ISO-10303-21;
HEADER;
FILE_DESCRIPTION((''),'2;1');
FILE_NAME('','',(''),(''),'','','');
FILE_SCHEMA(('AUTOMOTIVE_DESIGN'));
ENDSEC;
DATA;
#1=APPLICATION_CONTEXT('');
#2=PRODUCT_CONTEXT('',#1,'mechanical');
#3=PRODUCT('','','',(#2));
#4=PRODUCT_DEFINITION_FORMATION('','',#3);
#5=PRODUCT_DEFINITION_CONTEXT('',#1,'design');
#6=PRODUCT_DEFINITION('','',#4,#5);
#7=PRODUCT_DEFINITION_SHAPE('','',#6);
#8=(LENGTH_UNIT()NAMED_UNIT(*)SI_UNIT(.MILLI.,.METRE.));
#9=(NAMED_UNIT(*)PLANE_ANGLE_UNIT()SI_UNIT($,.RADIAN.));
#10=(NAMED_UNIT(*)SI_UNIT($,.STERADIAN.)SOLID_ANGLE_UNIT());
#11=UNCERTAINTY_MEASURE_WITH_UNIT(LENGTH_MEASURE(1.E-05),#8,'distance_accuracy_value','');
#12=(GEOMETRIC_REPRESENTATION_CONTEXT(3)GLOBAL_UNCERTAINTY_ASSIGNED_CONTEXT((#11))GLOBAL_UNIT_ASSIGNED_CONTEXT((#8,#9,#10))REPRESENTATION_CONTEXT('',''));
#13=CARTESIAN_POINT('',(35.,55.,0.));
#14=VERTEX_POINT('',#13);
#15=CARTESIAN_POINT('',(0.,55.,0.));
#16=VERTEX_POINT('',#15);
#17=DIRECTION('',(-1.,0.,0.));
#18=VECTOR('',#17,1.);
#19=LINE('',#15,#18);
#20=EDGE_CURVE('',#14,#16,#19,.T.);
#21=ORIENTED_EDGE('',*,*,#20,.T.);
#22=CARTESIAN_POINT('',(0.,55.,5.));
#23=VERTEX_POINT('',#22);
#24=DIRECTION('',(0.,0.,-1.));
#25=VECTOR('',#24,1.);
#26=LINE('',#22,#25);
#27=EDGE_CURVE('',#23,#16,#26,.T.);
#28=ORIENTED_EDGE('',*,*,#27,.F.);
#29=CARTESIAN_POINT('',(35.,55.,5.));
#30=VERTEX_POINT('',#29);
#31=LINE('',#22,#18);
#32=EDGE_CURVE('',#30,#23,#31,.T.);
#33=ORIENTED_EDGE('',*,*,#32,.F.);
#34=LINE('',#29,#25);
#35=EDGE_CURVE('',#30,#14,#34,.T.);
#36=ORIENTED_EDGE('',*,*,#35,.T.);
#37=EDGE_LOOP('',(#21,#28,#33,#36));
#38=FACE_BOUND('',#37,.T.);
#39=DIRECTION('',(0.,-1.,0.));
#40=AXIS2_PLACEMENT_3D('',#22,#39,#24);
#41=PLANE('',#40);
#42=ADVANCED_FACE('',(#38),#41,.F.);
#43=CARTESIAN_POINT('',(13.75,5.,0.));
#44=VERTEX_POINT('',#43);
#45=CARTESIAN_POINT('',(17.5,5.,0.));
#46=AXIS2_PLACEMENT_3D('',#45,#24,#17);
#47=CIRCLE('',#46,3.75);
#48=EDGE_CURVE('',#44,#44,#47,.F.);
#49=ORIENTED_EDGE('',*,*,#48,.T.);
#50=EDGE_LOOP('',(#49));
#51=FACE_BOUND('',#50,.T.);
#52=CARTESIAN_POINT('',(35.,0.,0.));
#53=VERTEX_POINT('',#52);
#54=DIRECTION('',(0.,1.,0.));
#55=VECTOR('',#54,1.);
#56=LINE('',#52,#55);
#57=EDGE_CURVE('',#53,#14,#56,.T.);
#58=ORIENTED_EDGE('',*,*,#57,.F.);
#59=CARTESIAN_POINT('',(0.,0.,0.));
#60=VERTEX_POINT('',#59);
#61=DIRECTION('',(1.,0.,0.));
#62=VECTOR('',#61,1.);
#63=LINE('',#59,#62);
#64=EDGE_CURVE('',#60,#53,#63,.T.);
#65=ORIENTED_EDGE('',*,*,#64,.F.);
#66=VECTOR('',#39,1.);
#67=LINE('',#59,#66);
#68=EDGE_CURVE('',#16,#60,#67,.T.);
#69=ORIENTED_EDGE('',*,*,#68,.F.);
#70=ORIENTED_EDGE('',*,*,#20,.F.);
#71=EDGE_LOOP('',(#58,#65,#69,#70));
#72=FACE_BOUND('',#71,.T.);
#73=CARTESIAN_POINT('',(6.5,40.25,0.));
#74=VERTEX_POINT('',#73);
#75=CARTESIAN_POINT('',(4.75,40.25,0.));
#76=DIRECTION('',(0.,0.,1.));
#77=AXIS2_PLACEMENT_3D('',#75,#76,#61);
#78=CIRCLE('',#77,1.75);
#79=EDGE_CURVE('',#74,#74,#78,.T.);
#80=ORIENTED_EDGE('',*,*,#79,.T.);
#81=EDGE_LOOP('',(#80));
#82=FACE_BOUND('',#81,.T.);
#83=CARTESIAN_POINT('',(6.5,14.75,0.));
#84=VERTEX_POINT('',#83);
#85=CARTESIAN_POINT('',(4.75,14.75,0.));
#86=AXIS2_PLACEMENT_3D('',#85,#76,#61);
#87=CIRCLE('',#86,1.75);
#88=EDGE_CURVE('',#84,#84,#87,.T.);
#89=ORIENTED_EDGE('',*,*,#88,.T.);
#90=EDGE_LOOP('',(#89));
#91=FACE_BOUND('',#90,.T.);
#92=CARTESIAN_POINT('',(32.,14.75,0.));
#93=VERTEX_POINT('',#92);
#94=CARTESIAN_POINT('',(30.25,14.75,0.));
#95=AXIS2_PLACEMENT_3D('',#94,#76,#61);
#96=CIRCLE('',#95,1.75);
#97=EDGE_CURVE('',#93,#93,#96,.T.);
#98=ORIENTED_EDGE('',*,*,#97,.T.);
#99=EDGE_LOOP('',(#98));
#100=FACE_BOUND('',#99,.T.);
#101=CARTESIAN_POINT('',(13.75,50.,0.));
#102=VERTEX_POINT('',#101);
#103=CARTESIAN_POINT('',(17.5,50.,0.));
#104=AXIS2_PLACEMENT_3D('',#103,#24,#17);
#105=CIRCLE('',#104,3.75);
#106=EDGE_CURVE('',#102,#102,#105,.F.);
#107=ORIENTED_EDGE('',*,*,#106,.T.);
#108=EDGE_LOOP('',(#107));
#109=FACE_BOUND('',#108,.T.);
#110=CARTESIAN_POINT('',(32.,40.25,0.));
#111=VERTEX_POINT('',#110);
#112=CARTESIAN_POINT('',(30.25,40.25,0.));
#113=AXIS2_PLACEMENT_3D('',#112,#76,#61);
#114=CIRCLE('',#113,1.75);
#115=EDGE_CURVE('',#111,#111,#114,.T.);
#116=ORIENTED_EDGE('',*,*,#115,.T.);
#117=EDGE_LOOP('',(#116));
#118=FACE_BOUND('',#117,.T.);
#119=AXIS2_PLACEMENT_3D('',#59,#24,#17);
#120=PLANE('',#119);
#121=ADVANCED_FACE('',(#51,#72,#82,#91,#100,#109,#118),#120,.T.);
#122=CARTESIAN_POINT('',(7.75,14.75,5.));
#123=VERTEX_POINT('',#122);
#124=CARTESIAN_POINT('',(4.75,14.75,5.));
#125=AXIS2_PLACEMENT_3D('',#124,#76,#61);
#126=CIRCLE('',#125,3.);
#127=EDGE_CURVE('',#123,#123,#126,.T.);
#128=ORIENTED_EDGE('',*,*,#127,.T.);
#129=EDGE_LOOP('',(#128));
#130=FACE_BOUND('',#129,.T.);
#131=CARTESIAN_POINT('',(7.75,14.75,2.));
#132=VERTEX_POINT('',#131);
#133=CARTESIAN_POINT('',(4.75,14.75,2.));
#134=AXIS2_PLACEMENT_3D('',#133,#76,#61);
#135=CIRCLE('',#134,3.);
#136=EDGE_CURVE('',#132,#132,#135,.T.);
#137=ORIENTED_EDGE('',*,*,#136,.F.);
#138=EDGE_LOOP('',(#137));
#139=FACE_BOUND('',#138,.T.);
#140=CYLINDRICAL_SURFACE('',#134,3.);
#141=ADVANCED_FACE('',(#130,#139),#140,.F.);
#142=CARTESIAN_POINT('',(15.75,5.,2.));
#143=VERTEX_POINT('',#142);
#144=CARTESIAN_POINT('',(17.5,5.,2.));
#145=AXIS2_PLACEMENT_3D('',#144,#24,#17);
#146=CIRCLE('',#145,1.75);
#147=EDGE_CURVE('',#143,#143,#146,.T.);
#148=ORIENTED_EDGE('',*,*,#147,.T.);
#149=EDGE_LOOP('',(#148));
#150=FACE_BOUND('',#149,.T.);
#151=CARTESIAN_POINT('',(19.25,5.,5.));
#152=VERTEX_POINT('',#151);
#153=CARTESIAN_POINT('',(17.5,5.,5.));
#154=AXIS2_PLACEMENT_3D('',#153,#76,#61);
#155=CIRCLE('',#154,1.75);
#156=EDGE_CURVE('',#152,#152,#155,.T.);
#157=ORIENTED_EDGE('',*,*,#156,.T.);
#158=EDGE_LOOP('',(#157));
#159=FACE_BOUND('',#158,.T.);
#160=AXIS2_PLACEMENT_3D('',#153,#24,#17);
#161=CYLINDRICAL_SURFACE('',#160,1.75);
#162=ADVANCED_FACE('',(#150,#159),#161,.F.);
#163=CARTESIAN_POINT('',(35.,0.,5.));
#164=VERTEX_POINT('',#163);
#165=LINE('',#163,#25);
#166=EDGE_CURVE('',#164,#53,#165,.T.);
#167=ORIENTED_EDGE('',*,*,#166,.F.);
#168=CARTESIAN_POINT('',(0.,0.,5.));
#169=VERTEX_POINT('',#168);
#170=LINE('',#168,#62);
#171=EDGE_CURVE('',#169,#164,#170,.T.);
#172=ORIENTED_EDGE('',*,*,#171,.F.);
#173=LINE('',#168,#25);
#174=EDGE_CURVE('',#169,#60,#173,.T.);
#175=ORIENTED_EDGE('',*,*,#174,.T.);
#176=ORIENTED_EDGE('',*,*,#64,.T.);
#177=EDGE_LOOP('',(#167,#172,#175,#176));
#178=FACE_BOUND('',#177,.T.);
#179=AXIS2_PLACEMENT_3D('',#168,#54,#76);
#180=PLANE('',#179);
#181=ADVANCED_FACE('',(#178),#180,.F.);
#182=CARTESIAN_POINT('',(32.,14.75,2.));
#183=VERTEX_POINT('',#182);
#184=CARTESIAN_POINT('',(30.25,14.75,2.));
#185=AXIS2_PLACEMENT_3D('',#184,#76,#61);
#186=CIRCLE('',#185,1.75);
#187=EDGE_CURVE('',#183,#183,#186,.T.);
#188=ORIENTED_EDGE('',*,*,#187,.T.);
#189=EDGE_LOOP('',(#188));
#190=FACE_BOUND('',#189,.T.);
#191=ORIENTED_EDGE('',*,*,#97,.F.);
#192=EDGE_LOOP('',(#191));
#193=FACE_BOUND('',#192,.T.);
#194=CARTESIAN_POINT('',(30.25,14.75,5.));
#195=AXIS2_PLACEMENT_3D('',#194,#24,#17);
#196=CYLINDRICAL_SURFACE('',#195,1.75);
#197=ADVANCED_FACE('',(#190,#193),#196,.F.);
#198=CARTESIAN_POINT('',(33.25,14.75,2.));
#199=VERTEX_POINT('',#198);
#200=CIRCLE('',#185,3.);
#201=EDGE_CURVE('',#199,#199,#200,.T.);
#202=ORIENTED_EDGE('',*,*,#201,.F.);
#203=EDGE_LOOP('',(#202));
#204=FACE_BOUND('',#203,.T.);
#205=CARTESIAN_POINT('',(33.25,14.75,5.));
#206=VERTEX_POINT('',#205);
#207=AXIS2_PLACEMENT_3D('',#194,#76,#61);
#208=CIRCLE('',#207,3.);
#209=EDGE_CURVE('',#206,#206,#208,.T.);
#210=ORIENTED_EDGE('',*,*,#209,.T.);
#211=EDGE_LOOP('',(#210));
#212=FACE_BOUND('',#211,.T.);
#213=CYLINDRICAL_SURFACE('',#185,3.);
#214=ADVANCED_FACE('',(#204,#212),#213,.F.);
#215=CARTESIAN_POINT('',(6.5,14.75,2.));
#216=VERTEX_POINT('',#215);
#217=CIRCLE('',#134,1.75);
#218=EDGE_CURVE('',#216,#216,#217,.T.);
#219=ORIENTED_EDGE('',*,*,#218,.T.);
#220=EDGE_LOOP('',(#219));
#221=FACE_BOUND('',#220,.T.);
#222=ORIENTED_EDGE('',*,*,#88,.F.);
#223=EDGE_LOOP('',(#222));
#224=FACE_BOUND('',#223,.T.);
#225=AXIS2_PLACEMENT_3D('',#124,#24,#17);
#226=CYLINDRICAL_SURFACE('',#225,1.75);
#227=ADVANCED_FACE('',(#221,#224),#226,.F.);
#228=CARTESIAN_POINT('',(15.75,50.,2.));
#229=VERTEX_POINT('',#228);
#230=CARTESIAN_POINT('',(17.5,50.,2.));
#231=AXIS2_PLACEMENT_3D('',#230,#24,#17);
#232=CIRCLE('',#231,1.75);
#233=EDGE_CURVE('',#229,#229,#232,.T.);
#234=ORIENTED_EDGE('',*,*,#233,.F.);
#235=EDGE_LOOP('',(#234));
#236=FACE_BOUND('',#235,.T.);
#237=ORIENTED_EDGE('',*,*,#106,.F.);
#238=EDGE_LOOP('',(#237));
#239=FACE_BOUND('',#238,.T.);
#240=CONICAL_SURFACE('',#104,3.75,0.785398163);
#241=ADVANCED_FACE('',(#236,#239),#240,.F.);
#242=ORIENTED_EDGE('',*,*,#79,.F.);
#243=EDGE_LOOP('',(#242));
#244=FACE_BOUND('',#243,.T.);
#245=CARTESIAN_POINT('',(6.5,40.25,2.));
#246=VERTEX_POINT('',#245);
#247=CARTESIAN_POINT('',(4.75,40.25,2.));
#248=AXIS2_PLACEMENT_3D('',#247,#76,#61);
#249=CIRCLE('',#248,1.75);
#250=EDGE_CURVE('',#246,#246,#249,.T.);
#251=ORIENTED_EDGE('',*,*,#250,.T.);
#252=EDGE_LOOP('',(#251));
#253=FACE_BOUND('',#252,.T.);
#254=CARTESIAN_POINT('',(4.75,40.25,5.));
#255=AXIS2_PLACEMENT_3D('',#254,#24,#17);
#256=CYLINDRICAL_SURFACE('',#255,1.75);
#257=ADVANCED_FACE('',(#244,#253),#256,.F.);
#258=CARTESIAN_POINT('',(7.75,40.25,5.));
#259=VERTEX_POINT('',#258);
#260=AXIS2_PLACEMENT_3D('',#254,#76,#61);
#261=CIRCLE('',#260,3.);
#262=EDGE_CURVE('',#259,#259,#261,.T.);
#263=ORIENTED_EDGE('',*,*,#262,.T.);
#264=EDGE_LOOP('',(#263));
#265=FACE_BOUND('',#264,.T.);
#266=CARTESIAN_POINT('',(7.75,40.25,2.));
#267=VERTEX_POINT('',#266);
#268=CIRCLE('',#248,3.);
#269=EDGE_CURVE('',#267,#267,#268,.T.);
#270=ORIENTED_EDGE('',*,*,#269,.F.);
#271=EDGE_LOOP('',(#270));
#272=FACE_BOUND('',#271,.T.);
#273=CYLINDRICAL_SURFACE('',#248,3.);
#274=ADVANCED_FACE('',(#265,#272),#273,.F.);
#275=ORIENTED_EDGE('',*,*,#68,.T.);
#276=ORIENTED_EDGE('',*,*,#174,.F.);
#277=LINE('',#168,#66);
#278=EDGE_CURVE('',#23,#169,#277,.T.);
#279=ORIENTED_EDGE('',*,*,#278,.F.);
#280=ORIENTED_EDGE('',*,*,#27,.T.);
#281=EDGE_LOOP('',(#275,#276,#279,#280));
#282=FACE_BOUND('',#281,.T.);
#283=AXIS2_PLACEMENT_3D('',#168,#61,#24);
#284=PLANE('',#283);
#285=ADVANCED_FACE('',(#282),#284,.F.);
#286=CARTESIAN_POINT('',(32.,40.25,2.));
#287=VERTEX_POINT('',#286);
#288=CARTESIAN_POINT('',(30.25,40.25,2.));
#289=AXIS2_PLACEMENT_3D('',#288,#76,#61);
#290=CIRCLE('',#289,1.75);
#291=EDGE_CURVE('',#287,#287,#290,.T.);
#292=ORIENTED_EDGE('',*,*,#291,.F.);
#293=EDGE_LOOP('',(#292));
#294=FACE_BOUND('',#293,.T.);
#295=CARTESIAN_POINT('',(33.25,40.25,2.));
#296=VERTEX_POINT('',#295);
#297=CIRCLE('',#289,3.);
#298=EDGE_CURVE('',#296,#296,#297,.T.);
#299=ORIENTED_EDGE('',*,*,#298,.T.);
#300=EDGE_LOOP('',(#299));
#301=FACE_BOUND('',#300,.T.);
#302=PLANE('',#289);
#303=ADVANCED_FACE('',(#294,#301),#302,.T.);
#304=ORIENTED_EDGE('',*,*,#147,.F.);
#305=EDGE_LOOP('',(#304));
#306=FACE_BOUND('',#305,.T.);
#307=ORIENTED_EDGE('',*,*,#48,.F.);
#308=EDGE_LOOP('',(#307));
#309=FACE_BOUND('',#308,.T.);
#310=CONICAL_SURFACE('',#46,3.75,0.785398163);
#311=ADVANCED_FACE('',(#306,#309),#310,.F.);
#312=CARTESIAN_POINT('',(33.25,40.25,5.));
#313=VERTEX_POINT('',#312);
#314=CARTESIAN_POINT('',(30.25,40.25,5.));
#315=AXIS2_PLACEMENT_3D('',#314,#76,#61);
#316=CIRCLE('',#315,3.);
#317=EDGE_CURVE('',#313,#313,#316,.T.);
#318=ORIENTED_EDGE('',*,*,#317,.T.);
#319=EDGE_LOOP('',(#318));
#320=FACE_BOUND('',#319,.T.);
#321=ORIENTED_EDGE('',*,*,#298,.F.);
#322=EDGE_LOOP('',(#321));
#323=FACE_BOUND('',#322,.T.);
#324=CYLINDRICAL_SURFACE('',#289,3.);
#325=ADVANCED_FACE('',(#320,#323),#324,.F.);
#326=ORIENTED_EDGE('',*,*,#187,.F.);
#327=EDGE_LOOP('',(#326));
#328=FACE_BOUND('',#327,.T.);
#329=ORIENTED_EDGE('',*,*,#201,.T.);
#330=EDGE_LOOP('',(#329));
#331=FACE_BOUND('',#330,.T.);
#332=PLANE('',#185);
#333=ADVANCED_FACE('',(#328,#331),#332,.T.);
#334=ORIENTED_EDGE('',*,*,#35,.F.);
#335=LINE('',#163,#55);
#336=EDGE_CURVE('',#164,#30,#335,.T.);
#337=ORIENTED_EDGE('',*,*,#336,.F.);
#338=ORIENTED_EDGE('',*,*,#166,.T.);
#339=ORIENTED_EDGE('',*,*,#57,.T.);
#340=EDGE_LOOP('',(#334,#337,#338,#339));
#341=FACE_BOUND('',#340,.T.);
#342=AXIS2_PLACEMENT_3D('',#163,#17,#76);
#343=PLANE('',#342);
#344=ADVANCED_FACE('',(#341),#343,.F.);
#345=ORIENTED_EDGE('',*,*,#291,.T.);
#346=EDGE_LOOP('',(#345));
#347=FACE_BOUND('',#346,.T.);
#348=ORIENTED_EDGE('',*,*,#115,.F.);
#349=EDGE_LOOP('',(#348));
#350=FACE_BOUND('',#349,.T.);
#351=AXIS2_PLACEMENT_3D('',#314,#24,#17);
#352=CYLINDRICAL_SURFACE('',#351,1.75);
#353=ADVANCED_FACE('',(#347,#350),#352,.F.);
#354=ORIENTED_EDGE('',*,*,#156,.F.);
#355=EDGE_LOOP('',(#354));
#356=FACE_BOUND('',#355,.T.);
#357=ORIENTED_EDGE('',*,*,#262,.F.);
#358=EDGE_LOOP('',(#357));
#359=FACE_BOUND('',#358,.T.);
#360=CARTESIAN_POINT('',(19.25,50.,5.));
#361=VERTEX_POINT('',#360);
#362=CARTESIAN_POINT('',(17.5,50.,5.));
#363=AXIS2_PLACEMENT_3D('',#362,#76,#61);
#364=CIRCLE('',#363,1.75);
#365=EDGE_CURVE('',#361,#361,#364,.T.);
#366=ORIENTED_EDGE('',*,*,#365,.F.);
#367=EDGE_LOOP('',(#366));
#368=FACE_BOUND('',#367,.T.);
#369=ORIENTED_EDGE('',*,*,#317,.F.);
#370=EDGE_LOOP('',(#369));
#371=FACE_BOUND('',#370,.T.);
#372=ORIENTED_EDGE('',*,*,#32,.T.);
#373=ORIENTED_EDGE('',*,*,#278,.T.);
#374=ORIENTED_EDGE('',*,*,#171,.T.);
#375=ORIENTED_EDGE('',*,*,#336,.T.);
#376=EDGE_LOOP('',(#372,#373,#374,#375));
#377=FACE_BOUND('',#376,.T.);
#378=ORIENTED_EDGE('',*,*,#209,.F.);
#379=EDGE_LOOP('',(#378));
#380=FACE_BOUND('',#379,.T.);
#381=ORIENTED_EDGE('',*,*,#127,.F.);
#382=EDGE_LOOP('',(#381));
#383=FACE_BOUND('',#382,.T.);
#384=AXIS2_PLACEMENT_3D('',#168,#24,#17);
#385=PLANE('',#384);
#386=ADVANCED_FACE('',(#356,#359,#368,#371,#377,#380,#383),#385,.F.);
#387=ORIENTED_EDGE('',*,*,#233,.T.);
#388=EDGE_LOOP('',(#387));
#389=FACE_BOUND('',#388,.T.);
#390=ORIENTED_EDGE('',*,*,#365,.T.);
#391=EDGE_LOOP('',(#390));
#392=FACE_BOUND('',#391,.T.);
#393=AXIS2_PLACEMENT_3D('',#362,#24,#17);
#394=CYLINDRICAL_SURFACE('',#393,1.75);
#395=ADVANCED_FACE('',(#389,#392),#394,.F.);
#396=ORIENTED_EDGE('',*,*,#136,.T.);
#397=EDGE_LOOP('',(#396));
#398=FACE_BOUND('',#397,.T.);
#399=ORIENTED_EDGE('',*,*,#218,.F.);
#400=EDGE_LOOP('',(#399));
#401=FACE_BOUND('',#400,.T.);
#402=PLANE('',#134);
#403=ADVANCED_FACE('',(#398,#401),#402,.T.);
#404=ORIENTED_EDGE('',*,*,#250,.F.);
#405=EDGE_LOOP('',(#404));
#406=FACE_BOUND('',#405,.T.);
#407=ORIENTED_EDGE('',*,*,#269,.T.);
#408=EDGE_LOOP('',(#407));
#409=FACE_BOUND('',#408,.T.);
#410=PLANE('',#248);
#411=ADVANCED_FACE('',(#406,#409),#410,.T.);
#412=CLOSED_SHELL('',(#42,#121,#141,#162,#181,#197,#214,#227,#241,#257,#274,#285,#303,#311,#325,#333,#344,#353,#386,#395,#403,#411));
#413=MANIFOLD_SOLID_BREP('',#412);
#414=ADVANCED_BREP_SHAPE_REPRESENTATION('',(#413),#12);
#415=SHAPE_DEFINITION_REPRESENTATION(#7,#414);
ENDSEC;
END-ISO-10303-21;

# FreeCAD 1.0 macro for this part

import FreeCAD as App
import Part
import Sketcher

V = App.Vector


def edges_at(feature, points):
    """Names of the edges that pass closest to the given points."""
    edges = feature.Shape.Edges
    near = lambda p: min(range(len(edges)), key=lambda i: edges[i].distToShape(Part.Vertex(*p))[0])
    return sorted({f"Edge{near(p) + 1}" for p in points})

doc = App.newDocument("Part")
body = doc.addObject("PartDesign::Body", "Body")

# Sketch on XY plane
sketch1 = doc.addObject("Sketcher::SketchObject", "Sketch")
body.addObject(sketch1)
sketch1.AttachmentSupport = (doc.XY_Plane, [""])
sketch1.MapMode = "FlatFace"
sketch1.addGeometry([
    Part.LineSegment(V(0, 55, 0), V(0, 0, 0)),  # 0
    Part.LineSegment(V(0, 0, 0), V(35, 0, 0)),  # 1
    Part.LineSegment(V(35, 0, 0), V(35, 55, 0)),  # 2
    Part.LineSegment(V(35, 55, 0), V(0, 55, 0)),  # 3
    Part.Circle(V(4.8, 14.8, 0), V(0, 0, 1), 1.8),  # 4
    Part.Circle(V(17.5, 5, 0), V(0, 0, 1), 1.8),  # 5
    Part.Circle(V(30.2, 14.8, 0), V(0, 0, 1), 1.8),  # 6
    Part.Circle(V(4.8, 40.2, 0), V(0, 0, 1), 1.8),  # 7
    Part.Circle(V(17.5, 50, 0), V(0, 0, 1), 1.8),  # 8
    Part.Circle(V(30.2, 40.2, 0), V(0, 0, 1), 1.8),  # 9
], False)
sketch1.addConstraint([
    Sketcher.Constraint("Coincident", 0, 2, 1, 1),
    Sketcher.Constraint("Coincident", 1, 2, 2, 1),
    Sketcher.Constraint("Coincident", 2, 2, 3, 1),
    Sketcher.Constraint("Coincident", 3, 2, 0, 1),
    Sketcher.Constraint("Vertical", 0),
    Sketcher.Constraint("Horizontal", 1),
    Sketcher.Constraint("Vertical", 2),
    Sketcher.Constraint("Horizontal", 3),
    Sketcher.Constraint("Coincident", 0, 2, -1, 1),
    Sketcher.Constraint("Equal", 4, 5),
    Sketcher.Constraint("Equal", 5, 6),
    Sketcher.Constraint("Equal", 6, 7),
    Sketcher.Constraint("Equal", 7, 8),
    Sketcher.Constraint("Equal", 8, 9),
    Sketcher.Constraint("Horizontal", 4, 3, 6, 3),
    Sketcher.Constraint("Horizontal", 7, 3, 9, 3),
    Sketcher.Constraint("Vertical", 4, 3, 7, 3),
    Sketcher.Constraint("Vertical", 5, 3, 8, 3),
    Sketcher.Constraint("Vertical", 6, 3, 9, 3),
    Sketcher.Constraint("Diameter", 4, 3.5),
    Sketcher.Constraint("DistanceX", 1, 1, 1, 2, 35.0),
    Sketcher.Constraint("DistanceY", 0, 2, 0, 1, 55.0),
    Sketcher.Constraint("DistanceY", -1, 1, 5, 3, 5.0),
    Sketcher.Constraint("DistanceY", -1, 1, 8, 3, 50.0),
    Sketcher.Constraint("DistanceX", -1, 1, 5, 3, 17.5),
    Sketcher.Constraint("DistanceX", 4, 3, 6, 3, 25.5),
    Sketcher.Constraint("DistanceY", 4, 3, 7, 3, 25.5),
    Sketcher.Constraint("DistanceX", -1, 1, 4, 3, 4.75),
    Sketcher.Constraint("DistanceY", -1, 1, 4, 3, 14.75),
])
pad1 = doc.addObject("PartDesign::Pad", "Pad")
body.addObject(pad1)
pad1.Profile = sketch1
pad1.Length = 5

# Sketch on XY plane
sketch2 = doc.addObject("Sketcher::SketchObject", "Sketch001")
body.addObject(sketch2)
sketch2.AttachmentSupport = (doc.XY_Plane, [""])
sketch2.MapMode = "FlatFace"
sketch2.AttachmentOffset = App.Placement(V(0, 0, 5), App.Rotation())
sketch2.addGeometry([
    Part.Circle(V(4.8, 40.2, 0), V(0, 0, 1), 3),
    Part.Circle(V(30.2, 40.2, 0), V(0, 0, 1), 3),
    Part.Circle(V(30.2, 14.8, 0), V(0, 0, 1), 3),
    Part.Circle(V(4.8, 14.8, 0), V(0, 0, 1), 3),
], False)
sketch2.addConstraint([
    Sketcher.Constraint("Equal", 0, 1),
    Sketcher.Constraint("Equal", 1, 2),
    Sketcher.Constraint("Equal", 2, 3),
    Sketcher.Constraint("Horizontal", 0, 3, 1, 3),
    Sketcher.Constraint("Horizontal", 2, 3, 3, 3),
    Sketcher.Constraint("Vertical", 1, 3, 2, 3),
    Sketcher.Constraint("Vertical", 0, 3, 3, 3),
    Sketcher.Constraint("Diameter", 0, 6.0),
    Sketcher.Constraint("DistanceX", 0, 3, 1, 3, 25.5),
    Sketcher.Constraint("DistanceY", 2, 3, 1, 3, 25.5),
    Sketcher.Constraint("DistanceX", -1, 1, 0, 3, 4.75),
    Sketcher.Constraint("DistanceY", -1, 1, 0, 3, 40.25),
])
pocket1 = doc.addObject("PartDesign::Pocket", "Pocket")
body.addObject(pocket1)
pocket1.Profile = sketch2
pocket1.Length = 3
doc.recompute()

chamfer = doc.addObject("PartDesign::Chamfer", "Chamfer")
body.addObject(chamfer)
chamfer.Base = (pocket1, edges_at(pocket1, [(15.75, 50, 0), (15.75, 5, 0)]))
chamfer.Size = 2

doc.recompute()
